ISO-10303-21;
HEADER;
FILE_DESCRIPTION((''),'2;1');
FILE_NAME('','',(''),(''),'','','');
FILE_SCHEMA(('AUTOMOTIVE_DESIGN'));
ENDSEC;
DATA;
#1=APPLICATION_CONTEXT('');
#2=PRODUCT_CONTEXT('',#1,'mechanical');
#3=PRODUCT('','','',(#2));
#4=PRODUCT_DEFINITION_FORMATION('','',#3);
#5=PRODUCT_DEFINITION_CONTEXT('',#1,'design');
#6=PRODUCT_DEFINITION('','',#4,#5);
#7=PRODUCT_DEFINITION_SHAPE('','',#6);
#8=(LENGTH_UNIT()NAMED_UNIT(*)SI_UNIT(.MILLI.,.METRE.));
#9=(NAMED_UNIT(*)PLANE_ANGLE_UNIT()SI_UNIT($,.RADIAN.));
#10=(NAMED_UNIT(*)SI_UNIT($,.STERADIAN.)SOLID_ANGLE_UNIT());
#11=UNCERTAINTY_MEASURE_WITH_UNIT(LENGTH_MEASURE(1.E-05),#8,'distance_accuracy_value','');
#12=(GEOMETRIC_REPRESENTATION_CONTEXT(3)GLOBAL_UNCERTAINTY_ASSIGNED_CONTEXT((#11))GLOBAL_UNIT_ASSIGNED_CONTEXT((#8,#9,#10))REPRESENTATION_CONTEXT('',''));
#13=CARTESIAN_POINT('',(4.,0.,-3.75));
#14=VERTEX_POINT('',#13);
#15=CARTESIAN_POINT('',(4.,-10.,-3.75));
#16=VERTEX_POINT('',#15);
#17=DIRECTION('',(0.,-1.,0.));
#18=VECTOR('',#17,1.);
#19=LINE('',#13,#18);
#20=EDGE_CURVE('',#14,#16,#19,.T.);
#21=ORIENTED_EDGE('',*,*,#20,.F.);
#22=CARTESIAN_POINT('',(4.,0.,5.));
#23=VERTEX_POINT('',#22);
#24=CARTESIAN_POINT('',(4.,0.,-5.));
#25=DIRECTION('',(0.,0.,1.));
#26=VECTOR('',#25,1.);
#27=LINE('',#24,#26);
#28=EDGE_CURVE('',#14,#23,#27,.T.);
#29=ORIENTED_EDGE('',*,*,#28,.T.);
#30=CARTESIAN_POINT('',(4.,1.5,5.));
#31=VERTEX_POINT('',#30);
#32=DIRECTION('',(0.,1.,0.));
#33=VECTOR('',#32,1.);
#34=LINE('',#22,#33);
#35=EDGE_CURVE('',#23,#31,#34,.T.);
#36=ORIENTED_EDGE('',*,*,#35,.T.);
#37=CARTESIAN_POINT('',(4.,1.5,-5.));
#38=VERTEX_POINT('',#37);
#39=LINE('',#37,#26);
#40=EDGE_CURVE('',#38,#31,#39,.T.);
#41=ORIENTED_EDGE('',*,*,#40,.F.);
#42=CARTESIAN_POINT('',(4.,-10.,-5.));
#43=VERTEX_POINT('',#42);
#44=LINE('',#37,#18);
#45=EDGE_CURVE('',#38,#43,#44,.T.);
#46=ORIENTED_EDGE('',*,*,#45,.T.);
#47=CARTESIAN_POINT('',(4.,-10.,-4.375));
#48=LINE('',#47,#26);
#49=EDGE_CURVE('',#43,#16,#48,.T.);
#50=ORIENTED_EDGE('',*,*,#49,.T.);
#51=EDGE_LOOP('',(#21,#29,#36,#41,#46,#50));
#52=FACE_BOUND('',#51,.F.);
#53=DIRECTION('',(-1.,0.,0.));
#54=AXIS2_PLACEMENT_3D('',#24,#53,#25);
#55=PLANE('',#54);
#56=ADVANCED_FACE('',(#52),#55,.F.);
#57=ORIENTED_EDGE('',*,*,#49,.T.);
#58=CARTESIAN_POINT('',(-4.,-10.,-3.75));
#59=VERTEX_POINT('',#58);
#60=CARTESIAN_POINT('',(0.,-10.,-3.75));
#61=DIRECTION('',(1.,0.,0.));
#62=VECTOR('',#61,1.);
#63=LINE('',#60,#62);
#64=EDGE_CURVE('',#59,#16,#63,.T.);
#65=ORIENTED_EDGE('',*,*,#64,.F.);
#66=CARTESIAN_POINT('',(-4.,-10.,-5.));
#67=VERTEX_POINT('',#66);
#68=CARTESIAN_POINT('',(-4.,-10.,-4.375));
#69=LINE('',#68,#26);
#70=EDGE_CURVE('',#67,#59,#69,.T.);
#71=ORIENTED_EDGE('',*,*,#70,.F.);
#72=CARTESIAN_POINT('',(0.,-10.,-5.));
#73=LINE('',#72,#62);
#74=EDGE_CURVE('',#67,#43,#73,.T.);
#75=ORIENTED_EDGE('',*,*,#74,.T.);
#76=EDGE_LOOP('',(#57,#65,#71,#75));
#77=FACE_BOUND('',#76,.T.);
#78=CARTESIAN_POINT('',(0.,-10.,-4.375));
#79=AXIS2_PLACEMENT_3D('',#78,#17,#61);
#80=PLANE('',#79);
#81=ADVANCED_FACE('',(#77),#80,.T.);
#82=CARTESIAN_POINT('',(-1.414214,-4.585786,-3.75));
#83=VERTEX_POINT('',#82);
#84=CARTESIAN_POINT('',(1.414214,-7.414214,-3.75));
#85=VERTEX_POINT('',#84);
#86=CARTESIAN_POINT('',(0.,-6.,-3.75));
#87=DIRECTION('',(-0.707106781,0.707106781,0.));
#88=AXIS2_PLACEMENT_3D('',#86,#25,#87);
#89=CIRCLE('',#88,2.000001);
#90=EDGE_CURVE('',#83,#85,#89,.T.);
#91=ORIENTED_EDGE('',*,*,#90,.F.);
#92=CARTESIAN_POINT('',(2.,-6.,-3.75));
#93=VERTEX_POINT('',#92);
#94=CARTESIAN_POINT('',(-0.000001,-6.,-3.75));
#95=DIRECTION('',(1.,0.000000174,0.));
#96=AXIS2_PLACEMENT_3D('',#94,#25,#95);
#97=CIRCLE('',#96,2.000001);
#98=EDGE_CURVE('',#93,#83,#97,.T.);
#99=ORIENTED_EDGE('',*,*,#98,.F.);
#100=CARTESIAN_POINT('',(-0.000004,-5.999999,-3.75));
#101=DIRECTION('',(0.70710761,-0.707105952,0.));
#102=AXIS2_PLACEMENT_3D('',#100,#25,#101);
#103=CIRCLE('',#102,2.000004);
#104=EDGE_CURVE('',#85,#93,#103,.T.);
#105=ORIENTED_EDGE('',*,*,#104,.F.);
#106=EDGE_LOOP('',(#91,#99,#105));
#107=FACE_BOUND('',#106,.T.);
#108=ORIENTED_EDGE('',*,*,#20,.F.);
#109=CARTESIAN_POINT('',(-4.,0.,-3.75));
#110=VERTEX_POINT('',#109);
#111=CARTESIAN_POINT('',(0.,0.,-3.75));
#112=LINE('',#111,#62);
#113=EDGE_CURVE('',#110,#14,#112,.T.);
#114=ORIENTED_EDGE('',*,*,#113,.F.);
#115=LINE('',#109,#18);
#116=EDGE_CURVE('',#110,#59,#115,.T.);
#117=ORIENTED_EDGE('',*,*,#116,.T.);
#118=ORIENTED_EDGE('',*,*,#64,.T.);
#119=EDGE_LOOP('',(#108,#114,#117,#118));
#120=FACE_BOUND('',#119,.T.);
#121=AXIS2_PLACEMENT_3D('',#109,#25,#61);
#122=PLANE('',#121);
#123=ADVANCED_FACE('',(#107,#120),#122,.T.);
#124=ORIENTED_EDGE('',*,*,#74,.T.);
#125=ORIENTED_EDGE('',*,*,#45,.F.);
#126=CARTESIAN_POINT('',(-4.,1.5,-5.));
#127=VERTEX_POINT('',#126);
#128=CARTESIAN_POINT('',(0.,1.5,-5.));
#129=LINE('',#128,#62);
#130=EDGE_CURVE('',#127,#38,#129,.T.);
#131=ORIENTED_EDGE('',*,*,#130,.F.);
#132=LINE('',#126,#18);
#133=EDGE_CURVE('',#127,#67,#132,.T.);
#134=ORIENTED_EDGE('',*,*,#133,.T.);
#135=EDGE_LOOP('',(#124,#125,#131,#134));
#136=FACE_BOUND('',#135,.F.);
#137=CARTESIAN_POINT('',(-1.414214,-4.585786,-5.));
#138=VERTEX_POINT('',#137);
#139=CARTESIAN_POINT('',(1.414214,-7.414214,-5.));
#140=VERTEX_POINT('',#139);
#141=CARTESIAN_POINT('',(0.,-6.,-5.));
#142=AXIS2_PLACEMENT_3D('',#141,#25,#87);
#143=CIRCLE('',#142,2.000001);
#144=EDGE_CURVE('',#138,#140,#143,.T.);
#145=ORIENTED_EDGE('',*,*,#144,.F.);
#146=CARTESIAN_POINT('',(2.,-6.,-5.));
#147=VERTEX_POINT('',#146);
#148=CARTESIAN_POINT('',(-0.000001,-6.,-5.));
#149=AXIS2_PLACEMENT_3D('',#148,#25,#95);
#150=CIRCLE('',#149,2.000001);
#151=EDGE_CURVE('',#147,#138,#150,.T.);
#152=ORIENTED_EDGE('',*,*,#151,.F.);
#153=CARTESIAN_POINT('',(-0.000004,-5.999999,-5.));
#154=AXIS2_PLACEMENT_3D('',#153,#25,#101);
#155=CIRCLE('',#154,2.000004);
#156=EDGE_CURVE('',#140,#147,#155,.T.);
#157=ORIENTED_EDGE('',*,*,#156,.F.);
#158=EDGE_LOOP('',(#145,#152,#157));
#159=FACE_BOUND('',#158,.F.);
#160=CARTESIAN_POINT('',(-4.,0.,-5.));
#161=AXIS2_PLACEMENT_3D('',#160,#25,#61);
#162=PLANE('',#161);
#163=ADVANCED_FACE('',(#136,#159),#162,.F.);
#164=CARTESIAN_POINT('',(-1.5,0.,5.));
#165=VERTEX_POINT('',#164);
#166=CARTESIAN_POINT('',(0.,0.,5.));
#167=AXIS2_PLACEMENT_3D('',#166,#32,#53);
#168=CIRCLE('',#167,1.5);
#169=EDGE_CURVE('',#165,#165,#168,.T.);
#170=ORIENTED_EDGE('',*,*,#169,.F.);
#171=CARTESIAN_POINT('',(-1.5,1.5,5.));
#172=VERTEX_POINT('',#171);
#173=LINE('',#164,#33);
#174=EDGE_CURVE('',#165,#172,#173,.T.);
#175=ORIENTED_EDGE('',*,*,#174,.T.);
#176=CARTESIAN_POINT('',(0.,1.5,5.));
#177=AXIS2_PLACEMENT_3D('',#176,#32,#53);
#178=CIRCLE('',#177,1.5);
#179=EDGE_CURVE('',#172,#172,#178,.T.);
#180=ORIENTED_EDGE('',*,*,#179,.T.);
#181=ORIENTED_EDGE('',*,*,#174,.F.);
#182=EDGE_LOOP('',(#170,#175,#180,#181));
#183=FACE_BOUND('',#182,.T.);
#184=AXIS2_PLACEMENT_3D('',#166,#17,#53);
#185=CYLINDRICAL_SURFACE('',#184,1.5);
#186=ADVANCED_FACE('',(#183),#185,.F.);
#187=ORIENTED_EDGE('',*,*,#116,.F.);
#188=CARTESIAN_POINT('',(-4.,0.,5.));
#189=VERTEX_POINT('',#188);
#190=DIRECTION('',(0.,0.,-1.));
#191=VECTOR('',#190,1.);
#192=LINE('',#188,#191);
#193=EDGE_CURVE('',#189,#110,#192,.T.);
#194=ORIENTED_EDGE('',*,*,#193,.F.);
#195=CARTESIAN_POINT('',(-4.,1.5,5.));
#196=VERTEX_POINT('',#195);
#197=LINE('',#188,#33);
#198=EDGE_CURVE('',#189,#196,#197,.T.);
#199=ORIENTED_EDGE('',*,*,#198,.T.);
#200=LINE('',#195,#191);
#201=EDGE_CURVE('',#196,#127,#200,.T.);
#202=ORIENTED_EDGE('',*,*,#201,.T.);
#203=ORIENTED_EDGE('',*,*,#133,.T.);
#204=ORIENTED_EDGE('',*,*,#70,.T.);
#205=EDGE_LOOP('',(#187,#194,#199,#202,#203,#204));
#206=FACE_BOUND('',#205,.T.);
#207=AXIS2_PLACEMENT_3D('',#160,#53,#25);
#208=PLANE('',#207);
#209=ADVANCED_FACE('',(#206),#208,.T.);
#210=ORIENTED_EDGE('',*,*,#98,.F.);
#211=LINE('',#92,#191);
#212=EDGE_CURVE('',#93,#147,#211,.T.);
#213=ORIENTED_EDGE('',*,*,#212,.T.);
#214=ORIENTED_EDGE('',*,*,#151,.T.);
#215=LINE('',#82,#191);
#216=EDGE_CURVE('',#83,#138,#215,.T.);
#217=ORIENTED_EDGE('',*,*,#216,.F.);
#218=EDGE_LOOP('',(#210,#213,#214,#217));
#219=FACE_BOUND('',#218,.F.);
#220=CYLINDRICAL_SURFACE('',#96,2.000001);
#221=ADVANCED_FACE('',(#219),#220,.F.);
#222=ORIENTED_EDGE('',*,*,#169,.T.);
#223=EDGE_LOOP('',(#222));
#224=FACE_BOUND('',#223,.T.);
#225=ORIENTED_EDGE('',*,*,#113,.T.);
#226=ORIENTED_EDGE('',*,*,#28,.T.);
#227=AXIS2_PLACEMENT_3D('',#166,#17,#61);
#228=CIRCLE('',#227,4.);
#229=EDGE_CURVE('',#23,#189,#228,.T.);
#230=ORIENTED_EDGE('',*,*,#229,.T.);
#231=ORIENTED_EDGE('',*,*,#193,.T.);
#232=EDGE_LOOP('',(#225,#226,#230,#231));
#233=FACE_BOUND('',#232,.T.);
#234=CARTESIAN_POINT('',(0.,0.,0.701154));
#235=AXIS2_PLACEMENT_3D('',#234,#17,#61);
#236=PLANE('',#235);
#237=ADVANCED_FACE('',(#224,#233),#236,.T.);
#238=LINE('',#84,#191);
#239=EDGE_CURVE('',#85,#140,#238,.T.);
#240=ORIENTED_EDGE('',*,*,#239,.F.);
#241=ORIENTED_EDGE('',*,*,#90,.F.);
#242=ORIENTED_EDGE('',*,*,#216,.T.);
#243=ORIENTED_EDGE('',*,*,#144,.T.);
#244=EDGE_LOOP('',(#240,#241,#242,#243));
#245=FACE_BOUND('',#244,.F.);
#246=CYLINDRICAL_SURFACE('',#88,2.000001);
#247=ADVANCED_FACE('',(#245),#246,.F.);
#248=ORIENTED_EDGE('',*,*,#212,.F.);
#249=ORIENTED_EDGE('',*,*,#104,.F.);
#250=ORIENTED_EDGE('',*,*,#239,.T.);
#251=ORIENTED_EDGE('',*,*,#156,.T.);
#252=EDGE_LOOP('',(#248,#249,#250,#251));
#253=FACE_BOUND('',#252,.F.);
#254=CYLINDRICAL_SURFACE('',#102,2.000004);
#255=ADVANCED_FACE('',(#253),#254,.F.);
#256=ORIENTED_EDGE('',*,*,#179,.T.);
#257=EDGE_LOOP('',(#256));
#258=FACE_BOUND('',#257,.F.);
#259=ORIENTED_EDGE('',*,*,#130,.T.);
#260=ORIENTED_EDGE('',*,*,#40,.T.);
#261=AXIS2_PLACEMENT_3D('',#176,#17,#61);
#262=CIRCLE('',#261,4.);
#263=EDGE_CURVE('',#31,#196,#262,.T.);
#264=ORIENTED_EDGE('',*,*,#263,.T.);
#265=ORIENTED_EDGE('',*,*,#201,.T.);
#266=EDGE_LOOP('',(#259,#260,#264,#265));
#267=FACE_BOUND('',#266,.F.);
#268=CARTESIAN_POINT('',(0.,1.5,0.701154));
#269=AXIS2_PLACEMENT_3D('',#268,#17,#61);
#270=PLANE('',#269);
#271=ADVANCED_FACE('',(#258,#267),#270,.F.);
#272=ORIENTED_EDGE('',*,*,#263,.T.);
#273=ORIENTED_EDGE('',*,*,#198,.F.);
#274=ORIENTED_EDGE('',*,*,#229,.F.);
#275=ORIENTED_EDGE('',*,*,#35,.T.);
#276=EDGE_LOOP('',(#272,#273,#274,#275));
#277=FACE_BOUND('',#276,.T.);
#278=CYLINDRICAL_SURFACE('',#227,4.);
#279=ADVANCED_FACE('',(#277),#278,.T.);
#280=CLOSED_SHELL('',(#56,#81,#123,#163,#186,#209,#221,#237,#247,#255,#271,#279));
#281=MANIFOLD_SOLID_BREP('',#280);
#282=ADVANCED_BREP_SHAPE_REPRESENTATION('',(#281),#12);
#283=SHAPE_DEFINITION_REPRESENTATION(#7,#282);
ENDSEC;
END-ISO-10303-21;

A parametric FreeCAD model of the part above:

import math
import FreeCAD as App
import Part
import Sketcher
from FreeCAD import Vector


def add_polygon(sketch, points):
    """Adds a closed chain of lines whose ends are joined by coincident constraints."""
    first, n = sketch.GeometryCount, len(points)
    for a, b in zip(points, points[1:] + points[:1]):
        sketch.addGeometry(Part.LineSegment(App.Vector(*a, 0), App.Vector(*b, 0)), False)
    for i in range(n):
        sketch.addConstraint(Sketcher.Constraint("Coincident", first + i, 2, first + (i + 1) % n, 1))

doc = App.newDocument("Part")
body = doc.addObject("PartDesign::Body", "Body")

# Sketch on XZ plane
sketch1 = body.newObject("Sketcher::SketchObject", "Sketch")
sketch1.AttachmentSupport = (doc.getObject("XZ_Plane"), [""])
sketch1.MapMode = "FlatFace"
sketch1.addGeometry([
    Part.LineSegment(Vector(-4, 5, 0), Vector(-4, -5, 0)),  # 0
    Part.LineSegment(Vector(-4, -5, 0), Vector(4, -5, 0)),  # 1
    Part.LineSegment(Vector(4, -5, 0), Vector(4, 5, 0)),  # 2
    Part.ArcOfCircle(Part.Circle(Vector(0, 5, 0), Vector(0, 0, 1), 4), math.radians(0), math.radians(180)),  # 3
    Part.Circle(Vector(0, 5, 0), Vector(0, 0, 1), 1.5),  # 4
], False)
sketch1.addConstraint([
    Sketcher.Constraint("Coincident", 0, 2, 1, 1),
    Sketcher.Constraint("Coincident", 1, 2, 2, 1),
    Sketcher.Constraint("Tangent", 2, 2, 3, 1),
    Sketcher.Constraint("Tangent", 3, 2, 0, 1),
    Sketcher.Constraint("Vertical", 0),
    Sketcher.Constraint("Horizontal", 1),
    Sketcher.Constraint("Vertical", 2),
    Sketcher.Constraint("Coincident", 4, 3, 3, 3),
    Sketcher.Constraint("Symmetric", 0, 2, 2, 2, -1, 1),
    Sketcher.Constraint("Diameter", 4, 3.0),
    Sketcher.Constraint("Radius", 3, 4.0),
    Sketcher.Constraint("DistanceY", 0, 2, 0, 1, 10.0),
])
pad1 = body.newObject("PartDesign::Pad", "Pad")
pad1.Profile = sketch1
pad1.Length = 1.5
pad1.Reversed = True

# Sketch on XZ plane
sketch2 = body.newObject("Sketcher::SketchObject", "Sketch001")
sketch2.AttachmentSupport = (doc.getObject("XZ_Plane"), [""])
sketch2.MapMode = "FlatFace"
add_polygon(sketch2, [(-4, -3.8), (-4, -5), (4, -5), (4, -3.8)])  # lines 0-3
sketch2.addConstraint([
    Sketcher.Constraint("Vertical", 0),
    Sketcher.Constraint("Horizontal", 1),
    Sketcher.Constraint("Vertical", 2),
    Sketcher.Constraint("Horizontal", 3),
    Sketcher.Constraint("DistanceX", 1, 1, 1, 2, 8.0),
    Sketcher.Constraint("DistanceX", 0, 2, -1, 1, 4.0),
    Sketcher.Constraint("DistanceY", 0, 2, -1, 1, 5.0),
    Sketcher.Constraint("DistanceY", 0, 2, 0, 1, 1.25),
])
pad2 = body.newObject("PartDesign::Pad", "Pad001")
pad2.Profile = sketch2
pad2.Length = 10

# Sketch on XY plane
sketch3 = body.newObject("Sketcher::SketchObject", "Sketch002")
sketch3.AttachmentSupport = (doc.getObject("XY_Plane"), [""])
sketch3.MapMode = "FlatFace"
sketch3.AttachmentOffset = App.Placement(Vector(0, 0, -3.75), App.Rotation())
sketch3.addGeometry([
    Part.ArcOfCircle(Part.Circle(Vector(0, -6, 0), Vector(0, 0, 1), 2), math.radians(135), math.radians(315)),
    Part.ArcOfCircle(Part.Circle(Vector(0, -6, 0), Vector(0, 0, 1), 2), math.radians(-45), math.radians(0)),
    Part.ArcOfCircle(Part.Circle(Vector(0, -6, 0), Vector(0, 0, 1), 2), math.radians(0), math.radians(135)),
], False)
sketch3.addConstraint([
    Sketcher.Constraint("Tangent", 0, 2, 1, 1),
    Sketcher.Constraint("Tangent", 1, 2, 2, 1),
    Sketcher.Constraint("Tangent", 2, 2, 0, 1),
    Sketcher.Constraint("PointOnObject", 0, 3, -2),
    Sketcher.Constraint("Horizontal", 2, 3, 1, 2),
    Sketcher.Constraint("Radius", 0, 2.000001),
    Sketcher.Constraint("DistanceY", 0, 3, -1, 1, 6.0),
    Sketcher.Constraint("DistanceX", 1, 3, 0, 2, 1.414218),
    Sketcher.Constraint("DistanceX", 2, 2, 1, 3, 1.41421),
])
pocket1 = body.newObject("PartDesign::Pocket", "Pocket")
pocket1.Profile = sketch3
pocket1.Type = "ThroughAll"

doc.recompute()
